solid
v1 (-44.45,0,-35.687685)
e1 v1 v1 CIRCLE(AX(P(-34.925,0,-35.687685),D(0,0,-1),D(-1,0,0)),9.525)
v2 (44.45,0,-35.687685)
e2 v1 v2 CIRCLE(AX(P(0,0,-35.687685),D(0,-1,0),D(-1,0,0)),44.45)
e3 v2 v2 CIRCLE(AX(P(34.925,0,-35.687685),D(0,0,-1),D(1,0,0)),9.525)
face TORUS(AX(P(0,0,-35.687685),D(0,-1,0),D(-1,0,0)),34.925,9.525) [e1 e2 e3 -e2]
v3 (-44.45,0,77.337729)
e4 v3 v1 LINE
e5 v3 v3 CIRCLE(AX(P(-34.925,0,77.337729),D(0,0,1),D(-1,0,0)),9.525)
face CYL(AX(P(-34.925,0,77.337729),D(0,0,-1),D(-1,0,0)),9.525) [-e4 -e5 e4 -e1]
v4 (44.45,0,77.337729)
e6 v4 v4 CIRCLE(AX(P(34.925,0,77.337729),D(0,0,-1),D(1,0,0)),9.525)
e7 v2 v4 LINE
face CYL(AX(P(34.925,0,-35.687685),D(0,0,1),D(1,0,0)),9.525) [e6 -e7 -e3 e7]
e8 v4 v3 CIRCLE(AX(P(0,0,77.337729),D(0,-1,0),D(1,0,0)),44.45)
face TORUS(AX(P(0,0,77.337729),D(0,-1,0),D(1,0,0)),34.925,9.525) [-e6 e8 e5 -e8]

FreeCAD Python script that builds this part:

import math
import FreeCAD as App
import Part
import Sketcher
from FreeCAD import Vector
Q = App.Units.Quantity

doc = App.newDocument("Part")
body = doc.addObject("PartDesign::Body", "Body")

sketch1 = body.newObject("Sketcher::SketchObject", "Sketch")
sketch1.AttachmentSupport = (doc.getObject("XY_Plane"), [""])
sketch1.MapMode = "FlatFace"
sketch1.addGeometry(Part.Circle(Vector(35, 0, 0), Vector(0, 0, 1), 10), False)
sketch1.addConstraint([
    Sketcher.Constraint("PointOnObject", 0, 3, -1),
    Sketcher.Constraint("Diameter", 0, Q("0.75 in")),
    Sketcher.Constraint("DistanceX", -1, 1, 0, 3, Q("1.375 in")),
])

sketch2 = body.newObject("Sketcher::SketchObject", "Sketch001")
sketch2.AttachmentSupport = (doc.getObject("XZ_Plane"), [""])
sketch2.MapMode = "FlatFace"
sketch2.addGeometry([
    Part.ArcOfCircle(Part.Circle(Vector(0, 77, 0), Vector(0, 0, 1), 25), math.radians(0), math.radians(180)),
    Part.LineSegment(Vector(-25, 77, 0), Vector(-25, -36, 0)),
    Part.ArcOfCircle(Part.Circle(Vector(0, -36, 0), Vector(0, 0, 1), 25), math.radians(180), math.radians(360)),
    Part.LineSegment(Vector(25, -36, 0), Vector(25, 77, 0)),
], False)
sketch2.addConstraint([
    Sketcher.Constraint("Tangent", 0, 2, 1, 1),
    Sketcher.Constraint("Tangent", 1, 2, 2, 1),
    Sketcher.Constraint("Tangent", 2, 2, 3, 1),
    Sketcher.Constraint("Tangent", 3, 2, 0, 1),
    Sketcher.Constraint("Vertical", 1),
    Sketcher.Constraint("Vertical", 3),
    Sketcher.Constraint("PointOnObject", 0, 3, -2),
    Sketcher.Constraint("Radius", 0, Q("1 in")),
    Sketcher.Constraint("DistanceY", 1, 2, 1, 1, Q("113.025414 mm")),
    Sketcher.Constraint("DistanceY", -1, 1, 0, 3, Q("77.337729 mm")),
])
doc.recompute()

additivepipe = body.newObject("PartDesign::AdditivePipe", "AdditivePipe")
additivepipe.Profile = sketch1
additivepipe.Spine = (sketch2, ["Edge1", "Edge2", "Edge3", "Edge4"])

doc.recompute()
